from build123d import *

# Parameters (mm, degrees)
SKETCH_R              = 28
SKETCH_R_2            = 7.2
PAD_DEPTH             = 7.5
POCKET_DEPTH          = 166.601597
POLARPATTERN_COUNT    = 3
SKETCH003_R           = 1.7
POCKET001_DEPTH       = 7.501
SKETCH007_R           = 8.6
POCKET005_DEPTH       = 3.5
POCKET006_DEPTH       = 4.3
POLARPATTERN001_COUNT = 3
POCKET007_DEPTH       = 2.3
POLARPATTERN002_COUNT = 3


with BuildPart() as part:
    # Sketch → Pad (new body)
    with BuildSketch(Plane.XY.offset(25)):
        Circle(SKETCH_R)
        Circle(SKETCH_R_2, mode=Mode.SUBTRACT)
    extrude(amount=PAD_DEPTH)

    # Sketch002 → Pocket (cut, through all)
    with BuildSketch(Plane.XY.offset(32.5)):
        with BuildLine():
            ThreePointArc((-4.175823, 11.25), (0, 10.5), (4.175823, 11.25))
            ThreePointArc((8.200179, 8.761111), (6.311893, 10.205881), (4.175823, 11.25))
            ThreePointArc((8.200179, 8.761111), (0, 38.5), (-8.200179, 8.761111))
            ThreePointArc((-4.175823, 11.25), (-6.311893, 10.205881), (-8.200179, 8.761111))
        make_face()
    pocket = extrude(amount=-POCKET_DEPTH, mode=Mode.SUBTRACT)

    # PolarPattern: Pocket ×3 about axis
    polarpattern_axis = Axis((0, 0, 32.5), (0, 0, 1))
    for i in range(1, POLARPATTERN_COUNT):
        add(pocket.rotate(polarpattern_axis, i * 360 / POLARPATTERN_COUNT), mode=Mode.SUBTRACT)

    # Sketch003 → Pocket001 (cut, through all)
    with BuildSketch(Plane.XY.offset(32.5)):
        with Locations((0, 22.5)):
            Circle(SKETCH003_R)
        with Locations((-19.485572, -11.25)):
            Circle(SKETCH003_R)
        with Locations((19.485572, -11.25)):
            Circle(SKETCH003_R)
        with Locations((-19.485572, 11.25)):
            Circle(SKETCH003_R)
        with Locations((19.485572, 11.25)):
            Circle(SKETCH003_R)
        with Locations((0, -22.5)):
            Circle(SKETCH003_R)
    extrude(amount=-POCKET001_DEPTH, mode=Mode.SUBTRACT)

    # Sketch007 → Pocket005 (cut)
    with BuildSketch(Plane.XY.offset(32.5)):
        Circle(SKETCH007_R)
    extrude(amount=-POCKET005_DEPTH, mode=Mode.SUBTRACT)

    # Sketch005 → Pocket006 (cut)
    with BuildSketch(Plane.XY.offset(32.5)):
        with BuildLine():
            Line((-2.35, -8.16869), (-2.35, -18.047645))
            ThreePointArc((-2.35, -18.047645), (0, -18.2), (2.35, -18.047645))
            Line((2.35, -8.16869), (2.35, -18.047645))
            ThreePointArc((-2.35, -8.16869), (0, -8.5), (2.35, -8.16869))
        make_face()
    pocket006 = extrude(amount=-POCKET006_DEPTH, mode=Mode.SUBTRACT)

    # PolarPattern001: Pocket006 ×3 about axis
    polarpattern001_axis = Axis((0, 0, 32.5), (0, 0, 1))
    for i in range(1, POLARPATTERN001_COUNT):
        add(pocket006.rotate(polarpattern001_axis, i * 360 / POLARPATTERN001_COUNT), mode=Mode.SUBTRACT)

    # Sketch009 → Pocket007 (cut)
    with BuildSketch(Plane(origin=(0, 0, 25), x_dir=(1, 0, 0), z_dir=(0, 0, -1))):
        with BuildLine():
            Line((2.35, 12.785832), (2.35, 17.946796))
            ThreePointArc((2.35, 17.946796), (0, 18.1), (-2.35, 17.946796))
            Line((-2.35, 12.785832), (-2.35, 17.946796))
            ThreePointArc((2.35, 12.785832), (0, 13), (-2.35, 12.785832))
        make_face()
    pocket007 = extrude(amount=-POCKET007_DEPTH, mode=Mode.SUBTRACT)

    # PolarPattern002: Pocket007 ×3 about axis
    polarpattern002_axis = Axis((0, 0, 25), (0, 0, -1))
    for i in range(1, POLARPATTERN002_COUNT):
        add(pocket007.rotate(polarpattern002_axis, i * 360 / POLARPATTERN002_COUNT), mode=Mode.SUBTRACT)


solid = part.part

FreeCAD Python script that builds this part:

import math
import FreeCAD as App
import Part
import Sketcher

V = App.Vector
Q = App.Units.Quantity

doc = App.newDocument("Part")
body = doc.addObject("PartDesign::Body", "Body")

# Sketch on XY plane
sketch1 = body.newObject("Sketcher::SketchObject", "Sketch")
sketch1.AttachmentSupport = (doc.getObject("XY_Plane"), [""])
sketch1.MapMode = "FlatFace"
sketch1.AttachmentOffset = App.Placement(V(0, 0, 25), App.Rotation())
sketch1.addGeometry([
    Part.Circle(V(0, 0, 0), V(0, 0, 1), 28),
    Part.Circle(V(0, 0, 0), V(0, 0, 1), 7.2),
], False)
sketch1.addConstraint([
    Sketcher.Constraint("Coincident", 0, 3, -1, 1),
    Sketcher.Constraint("Coincident", 1, 3, -1, 1),
    Sketcher.Constraint("Diameter", 0, Q("56 mm")),
    Sketcher.Constraint("Diameter", 1, Q("14.4 mm")),
])
pad1 = body.newObject("PartDesign::Pad", "Pad")
pad1.Profile = sketch1
pad1.Length = 7.5

# Sketch on XY plane
sketch2 = body.newObject("Sketcher::SketchObject", "Sketch001")
sketch2.AttachmentSupport = (doc.getObject("XY_Plane"), [""])
sketch2.MapMode = "FlatFace"
sketch2.AttachmentOffset = App.Placement(V(0, 0, 32.5), App.Rotation())
sketch2.addGeometry([
    Part.ArcOfCircle(Part.Circle(V(0, 22.499998, 0), V(0, 0, 1), 11.999998), math.radians(-110.364136), math.radians(-69.635864)),
    Part.ArcOfCircle(Part.Circle(V(0.000001, 0.000001, 0), V(0, 0, 1), 11.999999), math.radians(46.894157), math.radians(69.635869)),
    Part.ArcOfCircle(Part.Circle(V(0, 22.5, 0), V(0, 0, 1), 16), math.radians(-59.168756), math.radians(239.168756)),
    Part.ArcOfCircle(Part.Circle(V(-0.000001, 0.000001, 0), V(0, 0, 1), 11.999999), math.radians(110.364131), math.radians(133.105843)),
], False)
sketch2.addConstraint([
    Sketcher.Constraint("Coincident", 0, 2, 1, 2),
    Sketcher.Constraint("Coincident", 1, 1, 2, 1),
    Sketcher.Constraint("Coincident", 2, 2, 3, 2),
    Sketcher.Constraint("Coincident", 3, 1, 0, 1),
    Sketcher.Constraint("Coincident", 1, 3, -1, 1),
    Sketcher.Constraint("Coincident", 3, 3, -1, 1),
    Sketcher.Constraint("Coincident", 2, 3, 0, 3),
    Sketcher.Constraint("Equal", 0, 1),
    Sketcher.Constraint("Equal", 1, 3),
    Sketcher.Constraint("PointOnObject", 0, 3, -2),
    Sketcher.Constraint("Radius", 0, Q("11.999998 mm")),
    Sketcher.Constraint("Radius", 2, Q("16 mm")),
    Sketcher.Constraint("DistanceY", -1, 1, 0, 3, Q("22.499998 mm")),
])
pocket1 = body.newObject("PartDesign::Pocket", "Pocket")
pocket1.Profile = sketch2
pocket1.Type = "ThroughAll"
doc.recompute()

polarpattern = body.newObject("PartDesign::PolarPattern", "PolarPattern")
polarpattern.Originals = [pocket1]
polarpattern.Axis = (doc.getObject("Z_Axis"), [""])
polarpattern.Angle = 360
polarpattern.Occurrences = 3
body.Tip = polarpattern

# Sketch on XY plane
sketch3 = body.newObject("Sketcher::SketchObject", "Sketch002")
sketch3.AttachmentSupport = (doc.getObject("XY_Plane"), [""])
sketch3.MapMode = "FlatFace"
sketch3.AttachmentOffset = App.Placement(V(0, 0, 32.5), App.Rotation())
sketch3.addGeometry([
    Part.Circle(V(0, 22.5, 0), V(0, 0, 1), 1.7),  # 0
    Part.Circle(V(-19.485572, -11.25, 0), V(0, 0, 1), 1.7),  # 1
    Part.Circle(V(19.485572, -11.25, 0), V(0, 0, 1), 1.7),  # 2
    Part.Circle(V(-19.485572, 11.25, 0), V(0, 0, 1), 1.7),  # 3
    Part.Circle(V(19.485572, 11.25, 0), V(0, 0, 1), 1.7),  # 4
    Part.Circle(V(0, -22.5, 0), V(0, 0, 1), 1.7),  # 5
], False)
sketch3.addConstraint([
    Sketcher.Constraint("Equal", 0, 1),
    Sketcher.Constraint("Equal", 1, 2),
    Sketcher.Constraint("Equal", 2, 3),
    Sketcher.Constraint("Equal", 3, 4),
    Sketcher.Constraint("Equal", 4, 5),
    Sketcher.Constraint("Symmetric", 2, 3, 3, 3, -1, 1),
    Sketcher.Constraint("Symmetric", 1, 3, 4, 3, -1, 1),
    Sketcher.Constraint("Symmetric", 0, 3, 5, 3, -1, 1),
    Sketcher.Constraint("Symmetric", 1, 3, 2, 3, -2),
    Sketcher.Constraint("PointOnObject", 0, 3, -2),
    Sketcher.Constraint("Diameter", 0, Q("3.4 mm")),
    Sketcher.Constraint("DistanceY", 5, 3, 0, 3, Q("45 mm")),
    Sketcher.Constraint("DistanceY", 1, 3, 3, 3, Q("22.5 mm")),
    Sketcher.Constraint("DistanceX", 1, 3, -1, 1, Q("19.485572 mm")),
])
pocket2 = body.newObject("PartDesign::Pocket", "Pocket001")
pocket2.Profile = sketch3
pocket2.Type = "ThroughAll"

# Sketch on XY plane
sketch4 = body.newObject("Sketcher::SketchObject", "Sketch003")
sketch4.AttachmentSupport = (doc.getObject("XY_Plane"), [""])
sketch4.MapMode = "FlatFace"
sketch4.AttachmentOffset = App.Placement(V(0, 0, 32.5), App.Rotation())
sketch4.addGeometry(Part.Circle(V(0, 0, 0), V(0, 0, 1), 8.6), False)
sketch4.addConstraint([
    Sketcher.Constraint("Coincident", 0, 3, -1, 1),
    Sketcher.Constraint("Diameter", 0, Q("17.2 mm")),
])
pocket3 = body.newObject("PartDesign::Pocket", "Pocket002")
pocket3.Profile = sketch4
pocket3.Length = 3.5

# Sketch on XY plane
sketch5 = body.newObject("Sketcher::SketchObject", "Sketch004")
sketch5.AttachmentSupport = (doc.getObject("XY_Plane"), [""])
sketch5.MapMode = "FlatFace"
sketch5.AttachmentOffset = App.Placement(V(0, 0, 32.5), App.Rotation())
sketch5.addGeometry([
    Part.LineSegment(V(-2.35, -8.16869, 0), V(-2.35, -18.047645, 0)),
    Part.ArcOfCircle(Part.Circle(V(0, -0.000033, 0), V(0, 0, 1), 18.199967), math.radians(-97.418808), math.radians(-82.581192)),
    Part.LineSegment(V(2.35, -18.047645, 0), V(2.35, -8.16869, 0)),
    Part.ArcOfCircle(Part.Circle(V(0, -0.000006, 0), V(0, 0, 1), 8.499994), math.radians(-106.049682), math.radians(-73.950318)),
], False)
sketch5.addConstraint([
    Sketcher.Constraint("Coincident", 0, 2, 1, 1),
    Sketcher.Constraint("Coincident", 1, 2, 2, 1),
    Sketcher.Constraint("Coincident", 2, 2, 3, 2),
    Sketcher.Constraint("Coincident", 3, 1, 0, 1),
    Sketcher.Constraint("Vertical", 0),
    Sketcher.Constraint("Vertical", 2),
    Sketcher.Constraint("Coincident", 3, 3, -1, 1),
    Sketcher.Constraint("Symmetric", 0, 2, 1, 2, -2),
    Sketcher.Constraint("DistanceX", 0, 2, 1, 2, Q("4.7 mm")),
    Sketcher.Constraint("Radius", 1, Q("18.199967 mm")),
    Sketcher.Constraint("Radius", 3, Q("8.499994 mm")),
    Sketcher.Constraint("DistanceY", 0, 2, 0, 1, Q("9.878955 mm")),
])
pocket4 = body.newObject("PartDesign::Pocket", "Pocket003")
pocket4.Profile = sketch5
pocket4.Length = 4.3
doc.recompute()

polarpattern2 = body.newObject("PartDesign::PolarPattern", "PolarPattern001")
polarpattern2.Originals = [pocket4]
polarpattern2.Axis = (doc.getObject("Z_Axis"), [""])
polarpattern2.Angle = 360
polarpattern2.Occurrences = 3
body.Tip = polarpattern2

# Sketch on XY plane
sketch6 = body.newObject("Sketcher::SketchObject", "Sketch005")
sketch6.AttachmentSupport = (doc.getObject("XY_Plane"), [""])
sketch6.MapMode = "FlatFace"
sketch6.AttachmentOffset = App.Placement(V(0, 0, 25), App.Rotation())
sketch6.addGeometry([
    Part.LineSegment(V(2.35, -12.785832, 0), V(2.35, -17.946796, 0)),
    Part.ArcOfCircle(Part.Circle(V(0, -0.000044, 0), V(0, 0, 1), 18.099956), math.radians(-97.460033), math.radians(-82.539967)),
    Part.LineSegment(V(-2.35, -17.946796, 0), V(-2.35, -12.785832, 0)),
    Part.ArcOfCircle(Part.Circle(V(0, 0, 0), V(0, 0, 1), 13), math.radians(-100.414569), math.radians(-79.585431)),
], False)
sketch6.addConstraint([
    Sketcher.Constraint("Coincident", 0, 2, 1, 2),
    Sketcher.Constraint("Coincident", 1, 1, 2, 1),
    Sketcher.Constraint("Coincident", 2, 2, 3, 1),
    Sketcher.Constraint("Coincident", 3, 2, 0, 1),
    Sketcher.Constraint("Vertical", 0),
    Sketcher.Constraint("Vertical", 2),
    Sketcher.Constraint("Coincident", 3, 3, -1, 1),
    Sketcher.Constraint("Symmetric", 0, 2, 1, 1, -2),
    Sketcher.Constraint("Radius", 3, Q("13 mm")),
    Sketcher.Constraint("DistanceX", 1, 1, 0, 2, Q("4.7 mm")),
    Sketcher.Constraint("Radius", 1, Q("18.099956 mm")),
    Sketcher.Constraint("DistanceY", 0, 2, 0, 1, Q("5.160964 mm")),
])
pocket5 = body.newObject("PartDesign::Pocket", "Pocket004")
pocket5.Profile = sketch6
pocket5.Length = 2.3
pocket5.Reversed = True
doc.recompute()

polarpattern3 = body.newObject("PartDesign::PolarPattern", "PolarPattern002")
polarpattern3.Originals = [pocket5]
polarpattern3.Axis = (doc.getObject("Z_Axis"), [""])
polarpattern3.Angle = 360
polarpattern3.Occurrences = 3
body.Tip = polarpattern3

doc.recompute()
